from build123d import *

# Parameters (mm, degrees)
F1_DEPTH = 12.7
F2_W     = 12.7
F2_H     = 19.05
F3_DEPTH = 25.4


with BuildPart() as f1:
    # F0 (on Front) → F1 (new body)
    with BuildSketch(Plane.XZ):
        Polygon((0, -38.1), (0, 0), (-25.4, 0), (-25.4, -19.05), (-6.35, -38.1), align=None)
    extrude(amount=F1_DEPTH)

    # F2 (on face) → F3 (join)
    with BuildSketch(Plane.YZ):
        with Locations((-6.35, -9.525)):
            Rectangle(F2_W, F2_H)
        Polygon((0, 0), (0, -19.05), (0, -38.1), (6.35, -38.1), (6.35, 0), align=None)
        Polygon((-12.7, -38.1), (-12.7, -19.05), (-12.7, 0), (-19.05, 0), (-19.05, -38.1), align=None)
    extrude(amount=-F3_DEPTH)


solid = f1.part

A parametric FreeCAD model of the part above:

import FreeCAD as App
import Part
import Sketcher
Q = App.Units.Quantity

doc = App.newDocument("Part")
params = doc.addObject("Spreadsheet::Sheet", "Params")
for row, (alias, value) in enumerate([
    ("sketch1_width", "1 in"),
    ("sketch1_height", "1.5 in"),
    ("sketch1_width2", "0.25 in"),
    ("pad1_length", "0.5 in"),
    ("sketch2_width", "1 in"),
    ("sketch2_width2", "0.5 in"),
    ("sketch2_height", "1.5 in"),
    ("sketch2_height2", "0.75 in"),
    ("pad2_length", "1 in"),
], start=1):
    params.set(f"A{row}", alias)
    params.set(f"B{row}", "=" + value)
    params.setAlias(f"B{row}", alias)

body = doc.addObject("PartDesign::Body", "Body")

# Sketch on XZ plane
sketch1 = body.newObject("Sketcher::SketchObject", "Sketch")
sketch1.AttachmentSupport = (doc.getObject("XZ_Plane"), [""])
sketch1.MapMode = "FlatFace"
sketch1.addGeometry(Part.LineSegment(App.Vector(0, -38.1, 0), App.Vector(0, 0, 0)), False)
sketch1.addGeometry(Part.LineSegment(App.Vector(0, 0, 0), App.Vector(-25.4, 0, 0)), False)
sketch1.addGeometry(Part.LineSegment(App.Vector(-25.4, 0, 0), App.Vector(-25.4, -19.05, 0)), False)
sketch1.addGeometry(Part.LineSegment(App.Vector(-25.4, -19.05, 0), App.Vector(-6.35, -38.1, 0)), False)
sketch1.addGeometry(Part.LineSegment(App.Vector(-6.35, -38.1, 0), App.Vector(0, -38.1, 0)), False)
sketch1.addConstraint(Sketcher.Constraint("Coincident", 0, 2, 1, 1))
sketch1.addConstraint(Sketcher.Constraint("Coincident", 1, 2, 2, 1))
sketch1.addConstraint(Sketcher.Constraint("Coincident", 2, 2, 3, 1))
sketch1.addConstraint(Sketcher.Constraint("Coincident", 3, 2, 4, 1))
sketch1.addConstraint(Sketcher.Constraint("Coincident", 4, 2, 0, 1))
sketch1.addConstraint(Sketcher.Constraint("Vertical", 0))
sketch1.addConstraint(Sketcher.Constraint("Horizontal", 1))
sketch1.addConstraint(Sketcher.Constraint("Vertical", 2))
sketch1.addConstraint(Sketcher.Constraint("Horizontal", 4))
sketch1.addConstraint(Sketcher.Constraint("Coincident", 0, 2, -1, 1))
sketch1.addConstraint(Sketcher.Constraint("DistanceX", 1, 2, 1, 1, Q("1 in")))
sketch1.addConstraint(Sketcher.Constraint("DistanceY", 0, 1, 0, 2, Q("1.5 in")))
sketch1.addConstraint(Sketcher.Constraint("Angle", 3, Q("-45 deg")))
sketch1.addConstraint(Sketcher.Constraint("DistanceX", 4, 1, 4, 2, Q("0.25 in")))
sketch1.setExpression("Constraints[10]", "Params.sketch1_width")
sketch1.setExpression("Constraints[11]", "Params.sketch1_height")
sketch1.setExpression("Constraints[13]", "Params.sketch1_width2")
pad1 = body.newObject("PartDesign::Pad", "Pad")
pad1.Profile = sketch1
pad1.setExpression("Length", "Params.pad1_length")

# Sketch on YZ plane
sketch2 = body.newObject("Sketcher::SketchObject", "Sketch001")
sketch2.AttachmentSupport = (doc.getObject("YZ_Plane"), [""])
sketch2.MapMode = "FlatFace"
sketch2.addGeometry(Part.LineSegment(App.Vector(-12.7, -19.05, 0), App.Vector(0, -19.05, 0)), False)
sketch2.addGeometry(Part.LineSegment(App.Vector(0, -19.05, 0), App.Vector(0, -38.1, 0)), False)
sketch2.addGeometry(Part.LineSegment(App.Vector(0, -38.1, 0), App.Vector(6.35, -38.1, 0)), False)
sketch2.addGeometry(Part.LineSegment(App.Vector(6.35, -38.1, 0), App.Vector(6.35, 0, 0)), False)
sketch2.addGeometry(Part.LineSegment(App.Vector(6.35, 0, 0), App.Vector(-19.05, 0, 0)), False)
sketch2.addGeometry(Part.LineSegment(App.Vector(-19.05, 0, 0), App.Vector(-19.05, -38.1, 0)), False)
sketch2.addGeometry(Part.LineSegment(App.Vector(-19.05, -38.1, 0), App.Vector(-12.7, -38.1, 0)), False)
sketch2.addGeometry(Part.LineSegment(App.Vector(-12.7, -38.1, 0), App.Vector(-12.7, -19.05, 0)), False)
sketch2.addConstraint(Sketcher.Constraint("Coincident", 0, 2, 1, 1))
sketch2.addConstraint(Sketcher.Constraint("Coincident", 1, 2, 2, 1))
sketch2.addConstraint(Sketcher.Constraint("Coincident", 2, 2, 3, 1))
sketch2.addConstraint(Sketcher.Constraint("Coincident", 3, 2, 4, 1))
sketch2.addConstraint(Sketcher.Constraint("Coincident", 4, 2, 5, 1))
sketch2.addConstraint(Sketcher.Constraint("Coincident", 5, 2, 6, 1))
sketch2.addConstraint(Sketcher.Constraint("Coincident", 6, 2, 7, 1))
sketch2.addConstraint(Sketcher.Constraint("Coincident", 7, 2, 0, 1))
sketch2.addConstraint(Sketcher.Constraint("Horizontal", 0))
sketch2.addConstraint(Sketcher.Constraint("Vertical", 1))
sketch2.addConstraint(Sketcher.Constraint("Horizontal", 2))
sketch2.addConstraint(Sketcher.Constraint("Vertical", 3))
sketch2.addConstraint(Sketcher.Constraint("Horizontal", 4))
sketch2.addConstraint(Sketcher.Constraint("Vertical", 5))
sketch2.addConstraint(Sketcher.Constraint("Horizontal", 6))
sketch2.addConstraint(Sketcher.Constraint("Vertical", 7))
sketch2.addConstraint(Sketcher.Constraint("PointOnObject", 0, 2, -2))
sketch2.addConstraint(Sketcher.Constraint("PointOnObject", 3, 2, -1))
sketch2.addConstraint(Sketcher.Constraint("Horizontal", 2, 2, 5, 2))
sketch2.addConstraint(Sketcher.Constraint("Equal", 2, 6))
sketch2.addConstraint(Sketcher.Constraint("DistanceX", 4, 2, 4, 1, Q("1 in")))
sketch2.addConstraint(Sketcher.Constraint("DistanceX", 0, 1, 0, 2, Q("0.5 in")))
sketch2.addConstraint(Sketcher.Constraint("DistanceY", 3, 1, 3, 2, Q("1.5 in")))
sketch2.addConstraint(Sketcher.Constraint("DistanceY", 1, 2, 1, 1, Q("0.75 in")))
sketch2.setExpression("Constraints[20]", "Params.sketch2_width")
sketch2.setExpression("Constraints[21]", "Params.sketch2_width2")
sketch2.setExpression("Constraints[22]", "Params.sketch2_height")
sketch2.setExpression("Constraints[23]", "Params.sketch2_height2")
pad2 = body.newObject("PartDesign::Pad", "Pad001")
pad2.Profile = sketch2
pad2.setExpression("Length", "Params.pad2_length")
pad2.Reversed = True

doc.recompute()
